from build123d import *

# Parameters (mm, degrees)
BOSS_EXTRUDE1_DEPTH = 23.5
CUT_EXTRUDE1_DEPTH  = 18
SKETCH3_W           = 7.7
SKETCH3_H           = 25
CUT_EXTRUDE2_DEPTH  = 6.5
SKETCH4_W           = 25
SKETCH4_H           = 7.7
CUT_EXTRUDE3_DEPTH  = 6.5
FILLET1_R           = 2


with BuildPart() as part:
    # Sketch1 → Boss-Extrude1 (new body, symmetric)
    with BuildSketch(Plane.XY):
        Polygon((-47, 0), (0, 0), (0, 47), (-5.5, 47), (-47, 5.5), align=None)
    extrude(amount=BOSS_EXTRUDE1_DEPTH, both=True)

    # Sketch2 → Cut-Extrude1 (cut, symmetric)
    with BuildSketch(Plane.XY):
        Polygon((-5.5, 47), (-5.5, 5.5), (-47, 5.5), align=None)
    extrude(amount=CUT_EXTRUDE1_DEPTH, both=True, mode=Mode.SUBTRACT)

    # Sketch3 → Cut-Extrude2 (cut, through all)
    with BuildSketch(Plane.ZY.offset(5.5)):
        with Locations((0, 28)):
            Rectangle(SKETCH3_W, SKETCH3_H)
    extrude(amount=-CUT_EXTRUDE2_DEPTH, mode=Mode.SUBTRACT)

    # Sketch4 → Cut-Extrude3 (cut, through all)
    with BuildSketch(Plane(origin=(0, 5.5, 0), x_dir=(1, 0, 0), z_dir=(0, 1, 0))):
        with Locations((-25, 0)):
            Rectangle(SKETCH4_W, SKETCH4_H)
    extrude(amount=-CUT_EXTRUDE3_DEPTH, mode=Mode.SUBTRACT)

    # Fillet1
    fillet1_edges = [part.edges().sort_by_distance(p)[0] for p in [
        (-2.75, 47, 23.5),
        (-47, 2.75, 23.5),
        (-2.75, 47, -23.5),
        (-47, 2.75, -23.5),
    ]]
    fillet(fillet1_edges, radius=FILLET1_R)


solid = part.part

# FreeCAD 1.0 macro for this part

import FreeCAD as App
import Part
import Sketcher
from FreeCAD import Vector
Q = App.Units.Quantity


def edges_at(feature, points):
    """Names of the edges that pass closest to the given points."""
    edges = feature.Shape.Edges
    near = lambda p: min(range(len(edges)), key=lambda i: edges[i].distToShape(Part.Vertex(*p))[0])
    return sorted({f"Edge{near(p) + 1}" for p in points})


def add_polygon(sketch, points):
    """Adds a closed chain of lines whose ends are joined by coincident constraints."""
    first, n = sketch.GeometryCount, len(points)
    for a, b in zip(points, points[1:] + points[:1]):
        sketch.addGeometry(Part.LineSegment(App.Vector(*a, 0), App.Vector(*b, 0)), False)
    for i in range(n):
        sketch.addConstraint(Sketcher.Constraint("Coincident", first + i, 2, first + (i + 1) % n, 1))

doc = App.newDocument("Part")
body = doc.addObject("PartDesign::Body", "Body")

# Sketch on XY plane
sketch1 = body.newObject("Sketcher::SketchObject", "Sketch")
sketch1.AttachmentSupport = (doc.getObject("XY_Plane"), [""])
sketch1.MapMode = "FlatFace"
add_polygon(sketch1, [(-47, 0), (0, 0), (0, 47), (-6, 47), (-47, 6)])  # lines 0-4
sketch1.addConstraint(Sketcher.Constraint("Horizontal", 0))
sketch1.addConstraint(Sketcher.Constraint("Vertical", 1))
sketch1.addConstraint(Sketcher.Constraint("Horizontal", 2))
sketch1.addConstraint(Sketcher.Constraint("Vertical", 4))
sketch1.addConstraint(Sketcher.Constraint("Coincident", 0, 2, -1, 1))
sketch1.addConstraint(Sketcher.Constraint("Equal", 0, 1))
sketch1.addConstraint(Sketcher.Constraint("Equal", 2, 4))
sketch1.addConstraint(Sketcher.Constraint("DistanceX", 0, 1, 0, 2, Q("47 mm")))
sketch1.addConstraint(Sketcher.Constraint("DistanceX", 2, 2, 2, 1, Q("5.5 mm")))
pad1 = body.newObject("PartDesign::Pad", "Pad")
pad1.Profile = sketch1
pad1.Length = 47
pad1.Midplane = True

# Sketch on XY plane
sketch2 = body.newObject("Sketcher::SketchObject", "Sketch001")
sketch2.AttachmentSupport = (doc.getObject("XY_Plane"), [""])
sketch2.MapMode = "FlatFace"
add_polygon(sketch2, [(-6, 6), (-6, 47), (-47, 6)])  # lines 0-2
sketch2.addConstraint(Sketcher.Constraint("Vertical", 0))
sketch2.addConstraint(Sketcher.Constraint("Horizontal", 2))
sketch2.addConstraint(Sketcher.Constraint("Equal", 2, 0))
sketch2.addConstraint(Sketcher.Constraint("DistanceX", 2, 1, 2, 2, Q("41.5 mm")))
sketch2.addConstraint(Sketcher.Constraint("DistanceY", -1, 1, 0, 2, Q("47 mm")))
sketch2.addConstraint(Sketcher.Constraint("DistanceX", 1, 2, -1, 1, Q("47 mm")))
pocket1 = body.newObject("PartDesign::Pocket", "Pocket")
pocket1.Profile = sketch2
pocket1.Length = 36
pocket1.Midplane = True

# Sketch on YZ plane
sketch3 = body.newObject("Sketcher::SketchObject", "Sketch002")
sketch3.AttachmentSupport = (doc.getObject("YZ_Plane"), [""])
sketch3.MapMode = "FlatFace"
sketch3.AttachmentOffset = App.Placement(Vector(0, 0, -5.5), App.Rotation())
add_polygon(sketch3, [(40, -4), (16, -4), (16, 4), (40, 4)])  # lines 0-3
sketch3.addConstraint(Sketcher.Constraint("Horizontal", 0))
sketch3.addConstraint(Sketcher.Constraint("Vertical", 1))
sketch3.addConstraint(Sketcher.Constraint("Horizontal", 2))
sketch3.addConstraint(Sketcher.Constraint("Vertical", 3))
sketch3.addConstraint(Sketcher.Constraint("DistanceX", 0, 2, 0, 1, Q("25 mm")))
sketch3.addConstraint(Sketcher.Constraint("DistanceY", 1, 1, 1, 2, Q("7.7 mm")))
sketch3.addConstraint(Sketcher.Constraint("DistanceX", -1, 1, 0, 2, Q("15.5 mm")))
sketch3.addConstraint(Sketcher.Constraint("DistanceY", 0, 2, -1, 1, Q("3.85 mm")))
pocket2 = body.newObject("PartDesign::Pocket", "Pocket001")
pocket2.Profile = sketch3
pocket2.Type = "ThroughAll"
pocket2.Reversed = True

# Sketch on XZ plane
sketch4 = body.newObject("Sketcher::SketchObject", "Sketch003")
sketch4.AttachmentSupport = (doc.getObject("XZ_Plane"), [""])
sketch4.MapMode = "FlatFace"
sketch4.AttachmentOffset = App.Placement(Vector(0, 0, -5.5), App.Rotation())
add_polygon(sketch4, [(-38, -4), (-38, 4), (-12, 4), (-12, -4)])  # lines 0-3
sketch4.addConstraint(Sketcher.Constraint("Vertical", 0))
sketch4.addConstraint(Sketcher.Constraint("Horizontal", 1))
sketch4.addConstraint(Sketcher.Constraint("Vertical", 2))
sketch4.addConstraint(Sketcher.Constraint("Horizontal", 3))
sketch4.addConstraint(Sketcher.Constraint("DistanceX", 1, 1, 1, 2, Q("25 mm")))
sketch4.addConstraint(Sketcher.Constraint("DistanceY", 0, 1, 0, 2, Q("7.7 mm")))
sketch4.addConstraint(Sketcher.Constraint("DistanceX", 0, 2, -1, 1, Q("37.5 mm")))
sketch4.addConstraint(Sketcher.Constraint("DistanceY", -1, 1, 0, 2, Q("3.85 mm")))
pocket3 = body.newObject("PartDesign::Pocket", "Pocket002")
pocket3.Profile = sketch4
pocket3.Type = "ThroughAll"
pocket3.Reversed = True
doc.recompute()

fillet = body.newObject("PartDesign::Fillet", "Fillet")
fillet.Base = (pocket3, edges_at(pocket3, [
    (-2.75, 47, 23.5),
    (-47, 2.75, 23.5),
    (-2.75, 47, -23.5),
    (-47, 2.75, -23.5),
]))
fillet.Radius = 2

doc.recompute()
